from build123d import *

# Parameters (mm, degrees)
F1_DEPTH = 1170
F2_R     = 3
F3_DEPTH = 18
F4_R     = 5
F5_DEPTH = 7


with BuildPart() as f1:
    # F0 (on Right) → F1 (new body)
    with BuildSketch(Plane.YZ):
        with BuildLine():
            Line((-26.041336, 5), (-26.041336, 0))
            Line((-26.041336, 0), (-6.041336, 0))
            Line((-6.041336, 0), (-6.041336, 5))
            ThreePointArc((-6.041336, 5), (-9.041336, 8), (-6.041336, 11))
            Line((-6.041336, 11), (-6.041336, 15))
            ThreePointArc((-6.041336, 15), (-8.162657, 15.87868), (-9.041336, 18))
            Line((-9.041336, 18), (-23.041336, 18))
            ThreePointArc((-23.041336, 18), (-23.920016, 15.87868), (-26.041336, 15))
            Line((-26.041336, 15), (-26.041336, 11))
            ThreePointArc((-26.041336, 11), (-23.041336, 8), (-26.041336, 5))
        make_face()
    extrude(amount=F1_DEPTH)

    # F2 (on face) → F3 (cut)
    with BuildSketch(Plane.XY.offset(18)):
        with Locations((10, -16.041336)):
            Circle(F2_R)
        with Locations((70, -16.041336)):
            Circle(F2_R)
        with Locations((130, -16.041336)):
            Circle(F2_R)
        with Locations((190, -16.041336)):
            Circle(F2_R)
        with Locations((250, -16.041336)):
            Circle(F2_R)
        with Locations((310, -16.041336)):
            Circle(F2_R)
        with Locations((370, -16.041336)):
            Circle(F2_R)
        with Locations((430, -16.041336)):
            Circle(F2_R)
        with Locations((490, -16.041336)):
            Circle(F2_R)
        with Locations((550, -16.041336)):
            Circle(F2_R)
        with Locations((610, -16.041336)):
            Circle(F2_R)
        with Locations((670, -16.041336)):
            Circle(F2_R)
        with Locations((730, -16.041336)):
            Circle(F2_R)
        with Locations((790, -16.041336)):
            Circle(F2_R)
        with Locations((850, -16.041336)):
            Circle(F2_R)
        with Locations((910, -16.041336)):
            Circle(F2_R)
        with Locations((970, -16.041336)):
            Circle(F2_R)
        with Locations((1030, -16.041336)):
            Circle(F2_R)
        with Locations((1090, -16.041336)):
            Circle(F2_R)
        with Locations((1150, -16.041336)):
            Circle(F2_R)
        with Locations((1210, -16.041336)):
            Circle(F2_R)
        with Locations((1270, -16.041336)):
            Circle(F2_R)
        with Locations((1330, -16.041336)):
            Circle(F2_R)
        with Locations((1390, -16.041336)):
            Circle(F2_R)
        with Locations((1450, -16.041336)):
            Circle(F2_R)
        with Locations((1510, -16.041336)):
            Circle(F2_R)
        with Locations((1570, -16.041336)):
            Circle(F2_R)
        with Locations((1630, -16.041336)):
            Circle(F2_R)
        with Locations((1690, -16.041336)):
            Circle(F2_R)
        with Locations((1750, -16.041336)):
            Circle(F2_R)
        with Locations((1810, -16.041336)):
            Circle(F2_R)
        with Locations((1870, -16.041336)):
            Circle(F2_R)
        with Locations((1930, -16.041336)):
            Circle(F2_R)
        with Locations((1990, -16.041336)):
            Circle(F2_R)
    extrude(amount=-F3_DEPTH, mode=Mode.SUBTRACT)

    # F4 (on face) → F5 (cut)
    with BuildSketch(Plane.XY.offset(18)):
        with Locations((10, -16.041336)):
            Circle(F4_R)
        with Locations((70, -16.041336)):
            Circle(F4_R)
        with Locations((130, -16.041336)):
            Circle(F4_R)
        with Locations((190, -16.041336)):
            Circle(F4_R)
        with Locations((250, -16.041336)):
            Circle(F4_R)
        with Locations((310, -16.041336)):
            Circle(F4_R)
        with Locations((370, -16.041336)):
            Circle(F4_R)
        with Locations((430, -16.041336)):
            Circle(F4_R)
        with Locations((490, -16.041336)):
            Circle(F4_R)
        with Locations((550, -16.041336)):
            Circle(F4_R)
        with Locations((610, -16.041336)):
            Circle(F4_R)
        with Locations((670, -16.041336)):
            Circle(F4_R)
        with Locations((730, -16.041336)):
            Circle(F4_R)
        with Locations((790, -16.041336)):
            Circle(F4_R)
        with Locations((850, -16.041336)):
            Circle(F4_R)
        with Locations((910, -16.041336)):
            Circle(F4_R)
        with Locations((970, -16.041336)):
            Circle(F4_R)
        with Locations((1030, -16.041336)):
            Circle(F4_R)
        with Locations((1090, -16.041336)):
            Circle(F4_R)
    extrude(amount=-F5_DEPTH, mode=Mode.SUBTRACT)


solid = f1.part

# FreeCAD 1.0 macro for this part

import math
import FreeCAD as App
import Part
import Sketcher

doc = App.newDocument("Part")
params = doc.addObject("Spreadsheet::Sheet", "Params")
for row, (alias, value) in enumerate([
    ("sketch1_radius", "3 mm"),
    ("sketch1_width", "20 mm"),
    ("sketch1_height", "5 mm"),
    ("sketch1_height2", "4 mm"),
    ("pad1_length", "1170 mm"),
    ("sketch2_diameter", "6 mm"),
    ("pocket1_length", "18 mm"),
    ("sketch3_diameter", "10 mm"),
    ("pocket2_length", "7 mm"),
], start=1):
    params.set(f"A{row}", alias)
    params.set(f"B{row}", "=" + value)
    params.setAlias(f"B{row}", alias)

body = doc.addObject("PartDesign::Body", "Body")

sketch1 = body.newObject("Sketcher::SketchObject", "Sketch")
sketch1.AttachmentSupport = (doc.getObject("YZ_Plane"), [""])
sketch1.MapMode = "FlatFace"
sketch1.addGeometry([
    Part.LineSegment(App.Vector(-26.041336, 5, 0), App.Vector(-26.041336, 0, 0)),
    Part.LineSegment(App.Vector(-26.041336, 0, 0), App.Vector(-6.041336, 0, 0)),
    Part.LineSegment(App.Vector(-6.041336, 0, 0), App.Vector(-6.041336, 5, 0)),
    Part.ArcOfCircle(Part.Circle(App.Vector(-6.041336, 8, 0), App.Vector(0, 0, 1), 3), math.radians(90), math.radians(270)),
    Part.LineSegment(App.Vector(-6.041336, 11, 0), App.Vector(-6.041336, 15, 0)),
    Part.ArcOfCircle(Part.Circle(App.Vector(-6.041337, 17.999999, 0), App.Vector(0, 0, 1), 2.999999), math.radians(179.99999), math.radians(270.00001)),
    Part.LineSegment(App.Vector(-9.041336, 18, 0), App.Vector(-23.041336, 18, 0)),
    Part.ArcOfCircle(Part.Circle(App.Vector(-26.041337, 18.000001, 0), App.Vector(0, 0, 1), 3.000001), math.radians(-89.999978), math.radians(-0.000022)),
    Part.LineSegment(App.Vector(-26.041336, 15, 0), App.Vector(-26.041336, 11, 0)),
    Part.ArcOfCircle(Part.Circle(App.Vector(-26.041336, 8, 0), App.Vector(0, 0, 1), 3), math.radians(-90), math.radians(90)),
], False)
sketch1.addConstraint([
    Sketcher.Constraint("Coincident", 0, 2, 1, 1),
    Sketcher.Constraint("Coincident", 1, 2, 2, 1),
    Sketcher.Constraint("Coincident", 2, 2, 3, 2),
    Sketcher.Constraint("Coincident", 3, 1, 4, 1),
    Sketcher.Constraint("Coincident", 4, 2, 5, 2),
    Sketcher.Constraint("Coincident", 5, 1, 6, 1),
    Sketcher.Constraint("Coincident", 6, 2, 7, 2),
    Sketcher.Constraint("Coincident", 7, 1, 8, 1),
    Sketcher.Constraint("Coincident", 8, 2, 9, 2),
    Sketcher.Constraint("Coincident", 9, 1, 0, 1),
    Sketcher.Constraint("Vertical", 0),
    Sketcher.Constraint("Horizontal", 1),
    Sketcher.Constraint("Vertical", 2),
    Sketcher.Constraint("Vertical", 4),
    Sketcher.Constraint("Horizontal", 6),
    Sketcher.Constraint("Vertical", 8),
    Sketcher.Constraint("Equal", 3, 5),
    Sketcher.Constraint("Equal", 5, 7),
    Sketcher.Constraint("Equal", 7, 9),
    Sketcher.Constraint("PointOnObject", 0, 2, -1),
    Sketcher.Constraint("Horizontal", 5, 3, 7, 3),
    Sketcher.Constraint("Horizontal", 3, 3, 9, 3),
    Sketcher.Constraint("Horizontal", 7, 3, 5, 1),
    Sketcher.Constraint("Vertical", 3, 3, 5, 3),
    Sketcher.Constraint("Vertical", 7, 3, 9, 3),
    Sketcher.Constraint("Vertical", 9, 3, 0, 2),
    Sketcher.Constraint("Vertical", 5, 3, 1, 2),
    Sketcher.Constraint("Vertical", 2, 2, 3, 1),
    Sketcher.Constraint("Vertical", 0, 2, 7, 1),
    Sketcher.Constraint("Radius", 3, 3.0),
    Sketcher.Constraint("DistanceX", 1, 1, 1, 2, 20.0),
    Sketcher.Constraint("DistanceY", 0, 2, 0, 1, 5.0),
    Sketcher.Constraint("DistanceY", 4, 1, 4, 2, 4.0),
    Sketcher.Constraint("DistanceX", 3, 3, -1, 1, 6.041336),
])
sketch1.setExpression("Constraints[29]", "Params.sketch1_radius")
sketch1.setExpression("Constraints[30]", "Params.sketch1_width")
sketch1.setExpression("Constraints[31]", "Params.sketch1_height")
sketch1.setExpression("Constraints[32]", "Params.sketch1_height2")
pad1 = body.newObject("PartDesign::Pad", "Pad")
pad1.Profile = sketch1
pad1.setExpression("Length", "Params.pad1_length")

sketch2 = body.newObject("Sketcher::SketchObject", "Sketch001")
sketch2.AttachmentSupport = (doc.getObject("XY_Plane"), [""])
sketch2.MapMode = "FlatFace"
sketch2.AttachmentOffset = App.Placement(App.Vector(0, 0, 18), App.Rotation())
sketch2.addGeometry([
    Part.Circle(App.Vector(10, -16.041336, 0), App.Vector(0, 0, 1), 3),
    Part.Circle(App.Vector(70, -16.041336, 0), App.Vector(0, 0, 1), 3),
    Part.Circle(App.Vector(130, -16.041336, 0), App.Vector(0, 0, 1), 3),
    Part.Circle(App.Vector(190, -16.041336, 0), App.Vector(0, 0, 1), 3),
    Part.Circle(App.Vector(250, -16.041336, 0), App.Vector(0, 0, 1), 3),
    Part.Circle(App.Vector(310, -16.041336, 0), App.Vector(0, 0, 1), 3),
    Part.Circle(App.Vector(370, -16.041336, 0), App.Vector(0, 0, 1), 3),
    Part.Circle(App.Vector(430, -16.041336, 0), App.Vector(0, 0, 1), 3),
    Part.Circle(App.Vector(490, -16.041336, 0), App.Vector(0, 0, 1), 3),
    Part.Circle(App.Vector(550, -16.041336, 0), App.Vector(0, 0, 1), 3),
    Part.Circle(App.Vector(610, -16.041336, 0), App.Vector(0, 0, 1), 3),
    Part.Circle(App.Vector(670, -16.041336, 0), App.Vector(0, 0, 1), 3),
    Part.Circle(App.Vector(730, -16.041336, 0), App.Vector(0, 0, 1), 3),
    Part.Circle(App.Vector(790, -16.041336, 0), App.Vector(0, 0, 1), 3),
    Part.Circle(App.Vector(850, -16.041336, 0), App.Vector(0, 0, 1), 3),
    Part.Circle(App.Vector(910, -16.041336, 0), App.Vector(0, 0, 1), 3),
    Part.Circle(App.Vector(970, -16.041336, 0), App.Vector(0, 0, 1), 3),
    Part.Circle(App.Vector(1030, -16.041336, 0), App.Vector(0, 0, 1), 3),
    Part.Circle(App.Vector(1090, -16.041336, 0), App.Vector(0, 0, 1), 3),
    Part.Circle(App.Vector(1150, -16.041336, 0), App.Vector(0, 0, 1), 3),
    Part.Circle(App.Vector(1210, -16.041336, 0), App.Vector(0, 0, 1), 3),
    Part.Circle(App.Vector(1270, -16.041336, 0), App.Vector(0, 0, 1), 3),
    Part.Circle(App.Vector(1330, -16.041336, 0), App.Vector(0, 0, 1), 3),
    Part.Circle(App.Vector(1390, -16.041336, 0), App.Vector(0, 0, 1), 3),
    Part.Circle(App.Vector(1450, -16.041336, 0), App.Vector(0, 0, 1), 3),
    Part.Circle(App.Vector(1510, -16.041336, 0), App.Vector(0, 0, 1), 3),
    Part.Circle(App.Vector(1570, -16.041336, 0), App.Vector(0, 0, 1), 3),
    Part.Circle(App.Vector(1630, -16.041336, 0), App.Vector(0, 0, 1), 3),
    Part.Circle(App.Vector(1690, -16.041336, 0), App.Vector(0, 0, 1), 3),
    Part.Circle(App.Vector(1750, -16.041336, 0), App.Vector(0, 0, 1), 3),
    Part.Circle(App.Vector(1810, -16.041336, 0), App.Vector(0, 0, 1), 3),
    Part.Circle(App.Vector(1870, -16.041336, 0), App.Vector(0, 0, 1), 3),
    Part.Circle(App.Vector(1930, -16.041336, 0), App.Vector(0, 0, 1), 3),
    Part.Circle(App.Vector(1990, -16.041336, 0), App.Vector(0, 0, 1), 3),
], False)
sketch2.addConstraint([
    Sketcher.Constraint("Equal", 0, 1),
    Sketcher.Constraint("Equal", 1, 2),
    Sketcher.Constraint("Equal", 2, 3),
    Sketcher.Constraint("Equal", 3, 4),
    Sketcher.Constraint("Equal", 4, 5),
    Sketcher.Constraint("Equal", 5, 6),
    Sketcher.Constraint("Equal", 6, 7),
    Sketcher.Constraint("Equal", 7, 8),
    Sketcher.Constraint("Equal", 8, 9),
    Sketcher.Constraint("Equal", 9, 10),
    Sketcher.Constraint("Equal", 10, 11),
    Sketcher.Constraint("Equal", 11, 12),
    Sketcher.Constraint("Equal", 12, 13),
    Sketcher.Constraint("Equal", 13, 14),
    Sketcher.Constraint("Equal", 14, 15),
    Sketcher.Constraint("Equal", 15, 16),
    Sketcher.Constraint("Equal", 16, 17),
    Sketcher.Constraint("Equal", 17, 18),
    Sketcher.Constraint("Equal", 18, 19),
    Sketcher.Constraint("Equal", 19, 20),
    Sketcher.Constraint("Equal", 20, 21),
    Sketcher.Constraint("Equal", 21, 22),
    Sketcher.Constraint("Equal", 22, 23),
    Sketcher.Constraint("Equal", 23, 24),
    Sketcher.Constraint("Equal", 24, 25),
    Sketcher.Constraint("Equal", 25, 26),
    Sketcher.Constraint("Equal", 26, 27),
    Sketcher.Constraint("Equal", 27, 28),
    Sketcher.Constraint("Equal", 28, 29),
    Sketcher.Constraint("Equal", 29, 30),
    Sketcher.Constraint("Equal", 30, 31),
    Sketcher.Constraint("Equal", 31, 32),
    Sketcher.Constraint("Equal", 32, 33),
    Sketcher.Constraint("Horizontal", 0, 3, 1, 3),
    Sketcher.Constraint("Horizontal", 1, 3, 2, 3),
    Sketcher.Constraint("Horizontal", 2, 3, 3, 3),
    Sketcher.Constraint("Horizontal", 3, 3, 4, 3),
    Sketcher.Constraint("Horizontal", 4, 3, 5, 3),
    Sketcher.Constraint("Horizontal", 5, 3, 6, 3),
    Sketcher.Constraint("Horizontal", 6, 3, 7, 3),
    Sketcher.Constraint("Horizontal", 7, 3, 8, 3),
    Sketcher.Constraint("Horizontal", 8, 3, 9, 3),
    Sketcher.Constraint("Horizontal", 9, 3, 10, 3),
    Sketcher.Constraint("Horizontal", 10, 3, 11, 3),
    Sketcher.Constraint("Horizontal", 11, 3, 12, 3),
    Sketcher.Constraint("Horizontal", 12, 3, 13, 3),
    Sketcher.Constraint("Horizontal", 13, 3, 14, 3),
    Sketcher.Constraint("Horizontal", 14, 3, 15, 3),
    Sketcher.Constraint("Horizontal", 15, 3, 16, 3),
    Sketcher.Constraint("Horizontal", 16, 3, 17, 3),
    Sketcher.Constraint("Horizontal", 17, 3, 18, 3),
    Sketcher.Constraint("Horizontal", 18, 3, 19, 3),
    Sketcher.Constraint("Horizontal", 19, 3, 20, 3),
    Sketcher.Constraint("Horizontal", 20, 3, 21, 3),
    Sketcher.Constraint("Horizontal", 21, 3, 22, 3),
    Sketcher.Constraint("Horizontal", 22, 3, 23, 3),
    Sketcher.Constraint("Horizontal", 23, 3, 24, 3),
    Sketcher.Constraint("Horizontal", 24, 3, 25, 3),
    Sketcher.Constraint("Horizontal", 25, 3, 26, 3),
    Sketcher.Constraint("Horizontal", 26, 3, 27, 3),
    Sketcher.Constraint("Horizontal", 27, 3, 28, 3),
    Sketcher.Constraint("Horizontal", 28, 3, 29, 3),
    Sketcher.Constraint("Horizontal", 29, 3, 30, 3),
    Sketcher.Constraint("Horizontal", 30, 3, 31, 3),
    Sketcher.Constraint("Horizontal", 31, 3, 32, 3),
    Sketcher.Constraint("Horizontal", 32, 3, 33, 3),
    Sketcher.Constraint("Diameter", 0, 6.0),
    Sketcher.Constraint("DistanceX", -1, 1, 0, 3, 10.0),
    Sketcher.Constraint("DistanceX", -1, 1, 1, 3, 70.0),
    Sketcher.Constraint("DistanceX", -1, 1, 2, 3, 130.0),
    Sketcher.Constraint("DistanceX", -1, 1, 3, 3, 190.0),
    Sketcher.Constraint("DistanceX", -1, 1, 4, 3, 250.0),
    Sketcher.Constraint("DistanceX", -1, 1, 5, 3, 310.0),
    Sketcher.Constraint("DistanceX", -1, 1, 6, 3, 370.0),
    Sketcher.Constraint("DistanceX", -1, 1, 7, 3, 430.0),
    Sketcher.Constraint("DistanceX", -1, 1, 8, 3, 490.0),
    Sketcher.Constraint("DistanceX", -1, 1, 9, 3, 550.0),
    Sketcher.Constraint("DistanceX", -1, 1, 10, 3, 610.0),
    Sketcher.Constraint("DistanceX", -1, 1, 11, 3, 670.0),
    Sketcher.Constraint("DistanceX", -1, 1, 12, 3, 730.0),
    Sketcher.Constraint("DistanceX", -1, 1, 13, 3, 790.0),
    Sketcher.Constraint("DistanceX", -1, 1, 14, 3, 850.0),
    Sketcher.Constraint("DistanceX", -1, 1, 15, 3, 910.0),
    Sketcher.Constraint("DistanceX", -1, 1, 16, 3, 970.0),
    Sketcher.Constraint("DistanceX", -1, 1, 17, 3, 1030.0),
    Sketcher.Constraint("DistanceX", -1, 1, 18, 3, 1090.0),
    Sketcher.Constraint("DistanceX", -1, 1, 19, 3, 1150.0),
    Sketcher.Constraint("DistanceX", -1, 1, 20, 3, 1210.0),
    Sketcher.Constraint("DistanceX", -1, 1, 21, 3, 1270.0),
    Sketcher.Constraint("DistanceX", -1, 1, 22, 3, 1330.0),
    Sketcher.Constraint("DistanceX", -1, 1, 23, 3, 1390.0),
    Sketcher.Constraint("DistanceX", -1, 1, 24, 3, 1450.0),
    Sketcher.Constraint("DistanceX", -1, 1, 25, 3, 1510.0),
    Sketcher.Constraint("DistanceX", -1, 1, 26, 3, 1570.0),
    Sketcher.Constraint("DistanceX", -1, 1, 27, 3, 1630.0),
    Sketcher.Constraint("DistanceX", -1, 1, 28, 3, 1690.0),
    Sketcher.Constraint("DistanceX", -1, 1, 29, 3, 1750.0),
    Sketcher.Constraint("DistanceX", -1, 1, 30, 3, 1810.0),
    Sketcher.Constraint("DistanceX", -1, 1, 31, 3, 1870.0),
    Sketcher.Constraint("DistanceX", -1, 1, 32, 3, 1930.0),
    Sketcher.Constraint("DistanceX", -1, 1, 33, 3, 1990.0),
    Sketcher.Constraint("DistanceY", 0, 3, -1, 1, 16.041336),
])
sketch2.setExpression("Constraints[66]", "Params.sketch2_diameter")
pocket1 = body.newObject("PartDesign::Pocket", "Pocket")
pocket1.Profile = sketch2
pocket1.setExpression("Length", "Params.pocket1_length")

sketch3 = body.newObject("Sketcher::SketchObject", "Sketch002")
sketch3.AttachmentSupport = (doc.getObject("XY_Plane"), [""])
sketch3.MapMode = "FlatFace"
sketch3.AttachmentOffset = App.Placement(App.Vector(0, 0, 18), App.Rotation())
sketch3.addGeometry([
    Part.Circle(App.Vector(10, -16.041336, 0), App.Vector(0, 0, 1), 5),
    Part.Circle(App.Vector(70, -16.041336, 0), App.Vector(0, 0, 1), 5),
    Part.Circle(App.Vector(130, -16.041336, 0), App.Vector(0, 0, 1), 5),
    Part.Circle(App.Vector(190, -16.041336, 0), App.Vector(0, 0, 1), 5),
    Part.Circle(App.Vector(250, -16.041336, 0), App.Vector(0, 0, 1), 5),
    Part.Circle(App.Vector(310, -16.041336, 0), App.Vector(0, 0, 1), 5),
    Part.Circle(App.Vector(370, -16.041336, 0), App.Vector(0, 0, 1), 5),
    Part.Circle(App.Vector(430, -16.041336, 0), App.Vector(0, 0, 1), 5),
    Part.Circle(App.Vector(490, -16.041336, 0), App.Vector(0, 0, 1), 5),
    Part.Circle(App.Vector(550, -16.041336, 0), App.Vector(0, 0, 1), 5),
    Part.Circle(App.Vector(610, -16.041336, 0), App.Vector(0, 0, 1), 5),
    Part.Circle(App.Vector(670, -16.041336, 0), App.Vector(0, 0, 1), 5),
    Part.Circle(App.Vector(730, -16.041336, 0), App.Vector(0, 0, 1), 5),
    Part.Circle(App.Vector(790, -16.041336, 0), App.Vector(0, 0, 1), 5),
    Part.Circle(App.Vector(850, -16.041336, 0), App.Vector(0, 0, 1), 5),
    Part.Circle(App.Vector(910, -16.041336, 0), App.Vector(0, 0, 1), 5),
    Part.Circle(App.Vector(970, -16.041336, 0), App.Vector(0, 0, 1), 5),
    Part.Circle(App.Vector(1030, -16.041336, 0), App.Vector(0, 0, 1), 5),
    Part.Circle(App.Vector(1090, -16.041336, 0), App.Vector(0, 0, 1), 5),
], False)
sketch3.addConstraint([
    Sketcher.Constraint("Equal", 0, 1),
    Sketcher.Constraint("Equal", 1, 2),
    Sketcher.Constraint("Equal", 2, 3),
    Sketcher.Constraint("Equal", 3, 4),
    Sketcher.Constraint("Equal", 4, 5),
    Sketcher.Constraint("Equal", 5, 6),
    Sketcher.Constraint("Equal", 6, 7),
    Sketcher.Constraint("Equal", 7, 8),
    Sketcher.Constraint("Equal", 8, 9),
    Sketcher.Constraint("Equal", 9, 10),
    Sketcher.Constraint("Equal", 10, 11),
    Sketcher.Constraint("Equal", 11, 12),
    Sketcher.Constraint("Equal", 12, 13),
    Sketcher.Constraint("Equal", 13, 14),
    Sketcher.Constraint("Equal", 14, 15),
    Sketcher.Constraint("Equal", 15, 16),
    Sketcher.Constraint("Equal", 16, 17),
    Sketcher.Constraint("Equal", 17, 18),
    Sketcher.Constraint("Horizontal", 0, 3, 1, 3),
    Sketcher.Constraint("Horizontal", 1, 3, 2, 3),
    Sketcher.Constraint("Horizontal", 2, 3, 3, 3),
    Sketcher.Constraint("Horizontal", 3, 3, 4, 3),
    Sketcher.Constraint("Horizontal", 4, 3, 5, 3),
    Sketcher.Constraint("Horizontal", 5, 3, 6, 3),
    Sketcher.Constraint("Horizontal", 6, 3, 7, 3),
    Sketcher.Constraint("Horizontal", 7, 3, 8, 3),
    Sketcher.Constraint("Horizontal", 8, 3, 9, 3),
    Sketcher.Constraint("Horizontal", 9, 3, 10, 3),
    Sketcher.Constraint("Horizontal", 10, 3, 11, 3),
    Sketcher.Constraint("Horizontal", 11, 3, 12, 3),
    Sketcher.Constraint("Horizontal", 12, 3, 13, 3),
    Sketcher.Constraint("Horizontal", 13, 3, 14, 3),
    Sketcher.Constraint("Horizontal", 14, 3, 15, 3),
    Sketcher.Constraint("Horizontal", 15, 3, 16, 3),
    Sketcher.Constraint("Horizontal", 16, 3, 17, 3),
    Sketcher.Constraint("Horizontal", 17, 3, 18, 3),
    Sketcher.Constraint("Diameter", 0, 10.0),
    Sketcher.Constraint("DistanceX", -1, 1, 0, 3, 10.0),
    Sketcher.Constraint("DistanceX", -1, 1, 1, 3, 70.0),
    Sketcher.Constraint("DistanceX", -1, 1, 2, 3, 130.0),
    Sketcher.Constraint("DistanceX", -1, 1, 3, 3, 190.0),
    Sketcher.Constraint("DistanceX", -1, 1, 4, 3, 250.0),
    Sketcher.Constraint("DistanceX", -1, 1, 5, 3, 310.0),
    Sketcher.Constraint("DistanceX", -1, 1, 6, 3, 370.0),
    Sketcher.Constraint("DistanceX", -1, 1, 7, 3, 430.0),
    Sketcher.Constraint("DistanceX", -1, 1, 8, 3, 490.0),
    Sketcher.Constraint("DistanceX", -1, 1, 9, 3, 550.0),
    Sketcher.Constraint("DistanceX", -1, 1, 10, 3, 610.0),
    Sketcher.Constraint("DistanceX", -1, 1, 11, 3, 670.0),
    Sketcher.Constraint("DistanceX", -1, 1, 12, 3, 730.0),
    Sketcher.Constraint("DistanceX", -1, 1, 13, 3, 790.0),
    Sketcher.Constraint("DistanceX", -1, 1, 14, 3, 850.0),
    Sketcher.Constraint("DistanceX", -1, 1, 15, 3, 910.0),
    Sketcher.Constraint("DistanceX", -1, 1, 16, 3, 970.0),
    Sketcher.Constraint("DistanceX", -1, 1, 17, 3, 1030.0),
    Sketcher.Constraint("DistanceX", -1, 1, 18, 3, 1090.0),
    Sketcher.Constraint("DistanceY", 0, 3, -1, 1, 16.041336),
])
sketch3.setExpression("Constraints[36]", "Params.sketch3_diameter")
pocket2 = body.newObject("PartDesign::Pocket", "Pocket001")
pocket2.Profile = sketch3
pocket2.setExpression("Length", "Params.pocket2_length")

doc.recompute()
